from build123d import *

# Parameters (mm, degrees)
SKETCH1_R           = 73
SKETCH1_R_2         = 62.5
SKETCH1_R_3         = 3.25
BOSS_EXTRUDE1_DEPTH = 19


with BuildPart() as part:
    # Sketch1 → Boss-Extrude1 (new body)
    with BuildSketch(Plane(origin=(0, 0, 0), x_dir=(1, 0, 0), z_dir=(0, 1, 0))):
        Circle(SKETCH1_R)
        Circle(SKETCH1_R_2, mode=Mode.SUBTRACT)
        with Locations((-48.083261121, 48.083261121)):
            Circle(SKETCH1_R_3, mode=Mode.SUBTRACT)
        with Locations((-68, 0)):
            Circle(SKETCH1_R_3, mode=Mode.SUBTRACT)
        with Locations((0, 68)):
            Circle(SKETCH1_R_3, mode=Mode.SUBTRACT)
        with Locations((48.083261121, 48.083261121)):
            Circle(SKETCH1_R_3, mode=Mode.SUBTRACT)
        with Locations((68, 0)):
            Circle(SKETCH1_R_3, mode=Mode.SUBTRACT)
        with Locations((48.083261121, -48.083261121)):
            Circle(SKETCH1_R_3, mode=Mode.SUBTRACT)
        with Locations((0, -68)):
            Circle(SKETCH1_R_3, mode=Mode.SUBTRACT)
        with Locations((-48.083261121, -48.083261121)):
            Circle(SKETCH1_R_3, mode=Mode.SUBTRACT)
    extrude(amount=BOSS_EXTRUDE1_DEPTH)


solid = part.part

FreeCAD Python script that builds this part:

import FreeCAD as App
import Part
import Sketcher
from FreeCAD import Vector
Q = App.Units.Quantity

doc = App.newDocument("Part")
body = doc.addObject("PartDesign::Body", "Body")

sketch1 = body.newObject("Sketcher::SketchObject", "Sketch")
sketch1.AttachmentSupport = (doc.getObject("XZ_Plane"), [""])
sketch1.MapMode = "FlatFace"
sketch1.addGeometry(Part.Circle(Vector(0, 0, 0), Vector(0, 0, 1), 73), False)
sketch1.addGeometry(Part.Circle(Vector(-48.083261, 48.083261, 0), Vector(0, 0, 1), 3.25), False)
sketch1.addGeometry(Part.Circle(Vector(0, 68, 0), Vector(0, 0, 1), 3.25), False)
sketch1.addGeometry(Part.Circle(Vector(48.083261, 48.083261, 0), Vector(0, 0, 1), 3.25), False)
sketch1.addGeometry(Part.Circle(Vector(-68, 0, 0), Vector(0, 0, 1), 3.25), False)
sketch1.addGeometry(Part.Circle(Vector(-48.083261, -48.083261, 0), Vector(0, 0, 1), 3.25), False)
sketch1.addGeometry(Part.Circle(Vector(0, 0, 0), Vector(0, 0, 1), 62.5), False)
sketch1.addGeometry(Part.Circle(Vector(68, 0, 0), Vector(0, 0, 1), 3.25), False)
sketch1.addGeometry(Part.Circle(Vector(0, -68, 0), Vector(0, 0, 1), 3.25), False)
sketch1.addGeometry(Part.Circle(Vector(48.083261, -48.083261, 0), Vector(0, 0, 1), 3.25), False)
sketch1.addConstraint(Sketcher.Constraint("Coincident", 0, 3, -1, 1))
sketch1.addConstraint(Sketcher.Constraint("Coincident", 6, 3, -1, 1))
sketch1.addConstraint(Sketcher.Constraint("Equal", 1, 2))
sketch1.addConstraint(Sketcher.Constraint("Equal", 2, 3))
sketch1.addConstraint(Sketcher.Constraint("Equal", 3, 4))
sketch1.addConstraint(Sketcher.Constraint("Equal", 4, 5))
sketch1.addConstraint(Sketcher.Constraint("Equal", 5, 7))
sketch1.addConstraint(Sketcher.Constraint("Equal", 7, 8))
sketch1.addConstraint(Sketcher.Constraint("Equal", 8, 9))
sketch1.addConstraint(Sketcher.Constraint("Symmetric", 3, 3, 5, 3, -1, 1))
sketch1.addConstraint(Sketcher.Constraint("Symmetric", 4, 3, 7, 3, -1, 1))
sketch1.addConstraint(Sketcher.Constraint("Symmetric", 2, 3, 8, 3, -1, 1))
sketch1.addConstraint(Sketcher.Constraint("Symmetric", 1, 3, 9, 3, -1, 1))
sketch1.addConstraint(Sketcher.Constraint("Symmetric", 1, 3, 3, 3, -2))
sketch1.addConstraint(Sketcher.Constraint("PointOnObject", 2, 3, -2))
sketch1.addConstraint(Sketcher.Constraint("PointOnObject", 4, 3, -1))
sketch1.addConstraint(Sketcher.Constraint("Diameter", 0, Q("146 mm")))
sketch1.addConstraint(Sketcher.Constraint("Diameter", 6, Q("125 mm")))
sketch1.addConstraint(Sketcher.Constraint("Diameter", 1, Q("6.5 mm")))
sketch1.addConstraint(Sketcher.Constraint("DistanceY", -1, 1, 2, 3, Q("68 mm")))
sketch1.addConstraint(Sketcher.Constraint("DistanceX", 4, 3, -1, 1, Q("68 mm")))
sketch1.addConstraint(Sketcher.Constraint("DistanceX", 1, 3, -1, 1, Q("48.083261 mm")))
sketch1.addConstraint(Sketcher.Constraint("DistanceY", -1, 1, 1, 3, Q("48.083261 mm")))
pad1 = body.newObject("PartDesign::Pad", "Pad")
pad1.Profile = sketch1
pad1.Length = 19
pad1.Reversed = True

doc.recompute()
